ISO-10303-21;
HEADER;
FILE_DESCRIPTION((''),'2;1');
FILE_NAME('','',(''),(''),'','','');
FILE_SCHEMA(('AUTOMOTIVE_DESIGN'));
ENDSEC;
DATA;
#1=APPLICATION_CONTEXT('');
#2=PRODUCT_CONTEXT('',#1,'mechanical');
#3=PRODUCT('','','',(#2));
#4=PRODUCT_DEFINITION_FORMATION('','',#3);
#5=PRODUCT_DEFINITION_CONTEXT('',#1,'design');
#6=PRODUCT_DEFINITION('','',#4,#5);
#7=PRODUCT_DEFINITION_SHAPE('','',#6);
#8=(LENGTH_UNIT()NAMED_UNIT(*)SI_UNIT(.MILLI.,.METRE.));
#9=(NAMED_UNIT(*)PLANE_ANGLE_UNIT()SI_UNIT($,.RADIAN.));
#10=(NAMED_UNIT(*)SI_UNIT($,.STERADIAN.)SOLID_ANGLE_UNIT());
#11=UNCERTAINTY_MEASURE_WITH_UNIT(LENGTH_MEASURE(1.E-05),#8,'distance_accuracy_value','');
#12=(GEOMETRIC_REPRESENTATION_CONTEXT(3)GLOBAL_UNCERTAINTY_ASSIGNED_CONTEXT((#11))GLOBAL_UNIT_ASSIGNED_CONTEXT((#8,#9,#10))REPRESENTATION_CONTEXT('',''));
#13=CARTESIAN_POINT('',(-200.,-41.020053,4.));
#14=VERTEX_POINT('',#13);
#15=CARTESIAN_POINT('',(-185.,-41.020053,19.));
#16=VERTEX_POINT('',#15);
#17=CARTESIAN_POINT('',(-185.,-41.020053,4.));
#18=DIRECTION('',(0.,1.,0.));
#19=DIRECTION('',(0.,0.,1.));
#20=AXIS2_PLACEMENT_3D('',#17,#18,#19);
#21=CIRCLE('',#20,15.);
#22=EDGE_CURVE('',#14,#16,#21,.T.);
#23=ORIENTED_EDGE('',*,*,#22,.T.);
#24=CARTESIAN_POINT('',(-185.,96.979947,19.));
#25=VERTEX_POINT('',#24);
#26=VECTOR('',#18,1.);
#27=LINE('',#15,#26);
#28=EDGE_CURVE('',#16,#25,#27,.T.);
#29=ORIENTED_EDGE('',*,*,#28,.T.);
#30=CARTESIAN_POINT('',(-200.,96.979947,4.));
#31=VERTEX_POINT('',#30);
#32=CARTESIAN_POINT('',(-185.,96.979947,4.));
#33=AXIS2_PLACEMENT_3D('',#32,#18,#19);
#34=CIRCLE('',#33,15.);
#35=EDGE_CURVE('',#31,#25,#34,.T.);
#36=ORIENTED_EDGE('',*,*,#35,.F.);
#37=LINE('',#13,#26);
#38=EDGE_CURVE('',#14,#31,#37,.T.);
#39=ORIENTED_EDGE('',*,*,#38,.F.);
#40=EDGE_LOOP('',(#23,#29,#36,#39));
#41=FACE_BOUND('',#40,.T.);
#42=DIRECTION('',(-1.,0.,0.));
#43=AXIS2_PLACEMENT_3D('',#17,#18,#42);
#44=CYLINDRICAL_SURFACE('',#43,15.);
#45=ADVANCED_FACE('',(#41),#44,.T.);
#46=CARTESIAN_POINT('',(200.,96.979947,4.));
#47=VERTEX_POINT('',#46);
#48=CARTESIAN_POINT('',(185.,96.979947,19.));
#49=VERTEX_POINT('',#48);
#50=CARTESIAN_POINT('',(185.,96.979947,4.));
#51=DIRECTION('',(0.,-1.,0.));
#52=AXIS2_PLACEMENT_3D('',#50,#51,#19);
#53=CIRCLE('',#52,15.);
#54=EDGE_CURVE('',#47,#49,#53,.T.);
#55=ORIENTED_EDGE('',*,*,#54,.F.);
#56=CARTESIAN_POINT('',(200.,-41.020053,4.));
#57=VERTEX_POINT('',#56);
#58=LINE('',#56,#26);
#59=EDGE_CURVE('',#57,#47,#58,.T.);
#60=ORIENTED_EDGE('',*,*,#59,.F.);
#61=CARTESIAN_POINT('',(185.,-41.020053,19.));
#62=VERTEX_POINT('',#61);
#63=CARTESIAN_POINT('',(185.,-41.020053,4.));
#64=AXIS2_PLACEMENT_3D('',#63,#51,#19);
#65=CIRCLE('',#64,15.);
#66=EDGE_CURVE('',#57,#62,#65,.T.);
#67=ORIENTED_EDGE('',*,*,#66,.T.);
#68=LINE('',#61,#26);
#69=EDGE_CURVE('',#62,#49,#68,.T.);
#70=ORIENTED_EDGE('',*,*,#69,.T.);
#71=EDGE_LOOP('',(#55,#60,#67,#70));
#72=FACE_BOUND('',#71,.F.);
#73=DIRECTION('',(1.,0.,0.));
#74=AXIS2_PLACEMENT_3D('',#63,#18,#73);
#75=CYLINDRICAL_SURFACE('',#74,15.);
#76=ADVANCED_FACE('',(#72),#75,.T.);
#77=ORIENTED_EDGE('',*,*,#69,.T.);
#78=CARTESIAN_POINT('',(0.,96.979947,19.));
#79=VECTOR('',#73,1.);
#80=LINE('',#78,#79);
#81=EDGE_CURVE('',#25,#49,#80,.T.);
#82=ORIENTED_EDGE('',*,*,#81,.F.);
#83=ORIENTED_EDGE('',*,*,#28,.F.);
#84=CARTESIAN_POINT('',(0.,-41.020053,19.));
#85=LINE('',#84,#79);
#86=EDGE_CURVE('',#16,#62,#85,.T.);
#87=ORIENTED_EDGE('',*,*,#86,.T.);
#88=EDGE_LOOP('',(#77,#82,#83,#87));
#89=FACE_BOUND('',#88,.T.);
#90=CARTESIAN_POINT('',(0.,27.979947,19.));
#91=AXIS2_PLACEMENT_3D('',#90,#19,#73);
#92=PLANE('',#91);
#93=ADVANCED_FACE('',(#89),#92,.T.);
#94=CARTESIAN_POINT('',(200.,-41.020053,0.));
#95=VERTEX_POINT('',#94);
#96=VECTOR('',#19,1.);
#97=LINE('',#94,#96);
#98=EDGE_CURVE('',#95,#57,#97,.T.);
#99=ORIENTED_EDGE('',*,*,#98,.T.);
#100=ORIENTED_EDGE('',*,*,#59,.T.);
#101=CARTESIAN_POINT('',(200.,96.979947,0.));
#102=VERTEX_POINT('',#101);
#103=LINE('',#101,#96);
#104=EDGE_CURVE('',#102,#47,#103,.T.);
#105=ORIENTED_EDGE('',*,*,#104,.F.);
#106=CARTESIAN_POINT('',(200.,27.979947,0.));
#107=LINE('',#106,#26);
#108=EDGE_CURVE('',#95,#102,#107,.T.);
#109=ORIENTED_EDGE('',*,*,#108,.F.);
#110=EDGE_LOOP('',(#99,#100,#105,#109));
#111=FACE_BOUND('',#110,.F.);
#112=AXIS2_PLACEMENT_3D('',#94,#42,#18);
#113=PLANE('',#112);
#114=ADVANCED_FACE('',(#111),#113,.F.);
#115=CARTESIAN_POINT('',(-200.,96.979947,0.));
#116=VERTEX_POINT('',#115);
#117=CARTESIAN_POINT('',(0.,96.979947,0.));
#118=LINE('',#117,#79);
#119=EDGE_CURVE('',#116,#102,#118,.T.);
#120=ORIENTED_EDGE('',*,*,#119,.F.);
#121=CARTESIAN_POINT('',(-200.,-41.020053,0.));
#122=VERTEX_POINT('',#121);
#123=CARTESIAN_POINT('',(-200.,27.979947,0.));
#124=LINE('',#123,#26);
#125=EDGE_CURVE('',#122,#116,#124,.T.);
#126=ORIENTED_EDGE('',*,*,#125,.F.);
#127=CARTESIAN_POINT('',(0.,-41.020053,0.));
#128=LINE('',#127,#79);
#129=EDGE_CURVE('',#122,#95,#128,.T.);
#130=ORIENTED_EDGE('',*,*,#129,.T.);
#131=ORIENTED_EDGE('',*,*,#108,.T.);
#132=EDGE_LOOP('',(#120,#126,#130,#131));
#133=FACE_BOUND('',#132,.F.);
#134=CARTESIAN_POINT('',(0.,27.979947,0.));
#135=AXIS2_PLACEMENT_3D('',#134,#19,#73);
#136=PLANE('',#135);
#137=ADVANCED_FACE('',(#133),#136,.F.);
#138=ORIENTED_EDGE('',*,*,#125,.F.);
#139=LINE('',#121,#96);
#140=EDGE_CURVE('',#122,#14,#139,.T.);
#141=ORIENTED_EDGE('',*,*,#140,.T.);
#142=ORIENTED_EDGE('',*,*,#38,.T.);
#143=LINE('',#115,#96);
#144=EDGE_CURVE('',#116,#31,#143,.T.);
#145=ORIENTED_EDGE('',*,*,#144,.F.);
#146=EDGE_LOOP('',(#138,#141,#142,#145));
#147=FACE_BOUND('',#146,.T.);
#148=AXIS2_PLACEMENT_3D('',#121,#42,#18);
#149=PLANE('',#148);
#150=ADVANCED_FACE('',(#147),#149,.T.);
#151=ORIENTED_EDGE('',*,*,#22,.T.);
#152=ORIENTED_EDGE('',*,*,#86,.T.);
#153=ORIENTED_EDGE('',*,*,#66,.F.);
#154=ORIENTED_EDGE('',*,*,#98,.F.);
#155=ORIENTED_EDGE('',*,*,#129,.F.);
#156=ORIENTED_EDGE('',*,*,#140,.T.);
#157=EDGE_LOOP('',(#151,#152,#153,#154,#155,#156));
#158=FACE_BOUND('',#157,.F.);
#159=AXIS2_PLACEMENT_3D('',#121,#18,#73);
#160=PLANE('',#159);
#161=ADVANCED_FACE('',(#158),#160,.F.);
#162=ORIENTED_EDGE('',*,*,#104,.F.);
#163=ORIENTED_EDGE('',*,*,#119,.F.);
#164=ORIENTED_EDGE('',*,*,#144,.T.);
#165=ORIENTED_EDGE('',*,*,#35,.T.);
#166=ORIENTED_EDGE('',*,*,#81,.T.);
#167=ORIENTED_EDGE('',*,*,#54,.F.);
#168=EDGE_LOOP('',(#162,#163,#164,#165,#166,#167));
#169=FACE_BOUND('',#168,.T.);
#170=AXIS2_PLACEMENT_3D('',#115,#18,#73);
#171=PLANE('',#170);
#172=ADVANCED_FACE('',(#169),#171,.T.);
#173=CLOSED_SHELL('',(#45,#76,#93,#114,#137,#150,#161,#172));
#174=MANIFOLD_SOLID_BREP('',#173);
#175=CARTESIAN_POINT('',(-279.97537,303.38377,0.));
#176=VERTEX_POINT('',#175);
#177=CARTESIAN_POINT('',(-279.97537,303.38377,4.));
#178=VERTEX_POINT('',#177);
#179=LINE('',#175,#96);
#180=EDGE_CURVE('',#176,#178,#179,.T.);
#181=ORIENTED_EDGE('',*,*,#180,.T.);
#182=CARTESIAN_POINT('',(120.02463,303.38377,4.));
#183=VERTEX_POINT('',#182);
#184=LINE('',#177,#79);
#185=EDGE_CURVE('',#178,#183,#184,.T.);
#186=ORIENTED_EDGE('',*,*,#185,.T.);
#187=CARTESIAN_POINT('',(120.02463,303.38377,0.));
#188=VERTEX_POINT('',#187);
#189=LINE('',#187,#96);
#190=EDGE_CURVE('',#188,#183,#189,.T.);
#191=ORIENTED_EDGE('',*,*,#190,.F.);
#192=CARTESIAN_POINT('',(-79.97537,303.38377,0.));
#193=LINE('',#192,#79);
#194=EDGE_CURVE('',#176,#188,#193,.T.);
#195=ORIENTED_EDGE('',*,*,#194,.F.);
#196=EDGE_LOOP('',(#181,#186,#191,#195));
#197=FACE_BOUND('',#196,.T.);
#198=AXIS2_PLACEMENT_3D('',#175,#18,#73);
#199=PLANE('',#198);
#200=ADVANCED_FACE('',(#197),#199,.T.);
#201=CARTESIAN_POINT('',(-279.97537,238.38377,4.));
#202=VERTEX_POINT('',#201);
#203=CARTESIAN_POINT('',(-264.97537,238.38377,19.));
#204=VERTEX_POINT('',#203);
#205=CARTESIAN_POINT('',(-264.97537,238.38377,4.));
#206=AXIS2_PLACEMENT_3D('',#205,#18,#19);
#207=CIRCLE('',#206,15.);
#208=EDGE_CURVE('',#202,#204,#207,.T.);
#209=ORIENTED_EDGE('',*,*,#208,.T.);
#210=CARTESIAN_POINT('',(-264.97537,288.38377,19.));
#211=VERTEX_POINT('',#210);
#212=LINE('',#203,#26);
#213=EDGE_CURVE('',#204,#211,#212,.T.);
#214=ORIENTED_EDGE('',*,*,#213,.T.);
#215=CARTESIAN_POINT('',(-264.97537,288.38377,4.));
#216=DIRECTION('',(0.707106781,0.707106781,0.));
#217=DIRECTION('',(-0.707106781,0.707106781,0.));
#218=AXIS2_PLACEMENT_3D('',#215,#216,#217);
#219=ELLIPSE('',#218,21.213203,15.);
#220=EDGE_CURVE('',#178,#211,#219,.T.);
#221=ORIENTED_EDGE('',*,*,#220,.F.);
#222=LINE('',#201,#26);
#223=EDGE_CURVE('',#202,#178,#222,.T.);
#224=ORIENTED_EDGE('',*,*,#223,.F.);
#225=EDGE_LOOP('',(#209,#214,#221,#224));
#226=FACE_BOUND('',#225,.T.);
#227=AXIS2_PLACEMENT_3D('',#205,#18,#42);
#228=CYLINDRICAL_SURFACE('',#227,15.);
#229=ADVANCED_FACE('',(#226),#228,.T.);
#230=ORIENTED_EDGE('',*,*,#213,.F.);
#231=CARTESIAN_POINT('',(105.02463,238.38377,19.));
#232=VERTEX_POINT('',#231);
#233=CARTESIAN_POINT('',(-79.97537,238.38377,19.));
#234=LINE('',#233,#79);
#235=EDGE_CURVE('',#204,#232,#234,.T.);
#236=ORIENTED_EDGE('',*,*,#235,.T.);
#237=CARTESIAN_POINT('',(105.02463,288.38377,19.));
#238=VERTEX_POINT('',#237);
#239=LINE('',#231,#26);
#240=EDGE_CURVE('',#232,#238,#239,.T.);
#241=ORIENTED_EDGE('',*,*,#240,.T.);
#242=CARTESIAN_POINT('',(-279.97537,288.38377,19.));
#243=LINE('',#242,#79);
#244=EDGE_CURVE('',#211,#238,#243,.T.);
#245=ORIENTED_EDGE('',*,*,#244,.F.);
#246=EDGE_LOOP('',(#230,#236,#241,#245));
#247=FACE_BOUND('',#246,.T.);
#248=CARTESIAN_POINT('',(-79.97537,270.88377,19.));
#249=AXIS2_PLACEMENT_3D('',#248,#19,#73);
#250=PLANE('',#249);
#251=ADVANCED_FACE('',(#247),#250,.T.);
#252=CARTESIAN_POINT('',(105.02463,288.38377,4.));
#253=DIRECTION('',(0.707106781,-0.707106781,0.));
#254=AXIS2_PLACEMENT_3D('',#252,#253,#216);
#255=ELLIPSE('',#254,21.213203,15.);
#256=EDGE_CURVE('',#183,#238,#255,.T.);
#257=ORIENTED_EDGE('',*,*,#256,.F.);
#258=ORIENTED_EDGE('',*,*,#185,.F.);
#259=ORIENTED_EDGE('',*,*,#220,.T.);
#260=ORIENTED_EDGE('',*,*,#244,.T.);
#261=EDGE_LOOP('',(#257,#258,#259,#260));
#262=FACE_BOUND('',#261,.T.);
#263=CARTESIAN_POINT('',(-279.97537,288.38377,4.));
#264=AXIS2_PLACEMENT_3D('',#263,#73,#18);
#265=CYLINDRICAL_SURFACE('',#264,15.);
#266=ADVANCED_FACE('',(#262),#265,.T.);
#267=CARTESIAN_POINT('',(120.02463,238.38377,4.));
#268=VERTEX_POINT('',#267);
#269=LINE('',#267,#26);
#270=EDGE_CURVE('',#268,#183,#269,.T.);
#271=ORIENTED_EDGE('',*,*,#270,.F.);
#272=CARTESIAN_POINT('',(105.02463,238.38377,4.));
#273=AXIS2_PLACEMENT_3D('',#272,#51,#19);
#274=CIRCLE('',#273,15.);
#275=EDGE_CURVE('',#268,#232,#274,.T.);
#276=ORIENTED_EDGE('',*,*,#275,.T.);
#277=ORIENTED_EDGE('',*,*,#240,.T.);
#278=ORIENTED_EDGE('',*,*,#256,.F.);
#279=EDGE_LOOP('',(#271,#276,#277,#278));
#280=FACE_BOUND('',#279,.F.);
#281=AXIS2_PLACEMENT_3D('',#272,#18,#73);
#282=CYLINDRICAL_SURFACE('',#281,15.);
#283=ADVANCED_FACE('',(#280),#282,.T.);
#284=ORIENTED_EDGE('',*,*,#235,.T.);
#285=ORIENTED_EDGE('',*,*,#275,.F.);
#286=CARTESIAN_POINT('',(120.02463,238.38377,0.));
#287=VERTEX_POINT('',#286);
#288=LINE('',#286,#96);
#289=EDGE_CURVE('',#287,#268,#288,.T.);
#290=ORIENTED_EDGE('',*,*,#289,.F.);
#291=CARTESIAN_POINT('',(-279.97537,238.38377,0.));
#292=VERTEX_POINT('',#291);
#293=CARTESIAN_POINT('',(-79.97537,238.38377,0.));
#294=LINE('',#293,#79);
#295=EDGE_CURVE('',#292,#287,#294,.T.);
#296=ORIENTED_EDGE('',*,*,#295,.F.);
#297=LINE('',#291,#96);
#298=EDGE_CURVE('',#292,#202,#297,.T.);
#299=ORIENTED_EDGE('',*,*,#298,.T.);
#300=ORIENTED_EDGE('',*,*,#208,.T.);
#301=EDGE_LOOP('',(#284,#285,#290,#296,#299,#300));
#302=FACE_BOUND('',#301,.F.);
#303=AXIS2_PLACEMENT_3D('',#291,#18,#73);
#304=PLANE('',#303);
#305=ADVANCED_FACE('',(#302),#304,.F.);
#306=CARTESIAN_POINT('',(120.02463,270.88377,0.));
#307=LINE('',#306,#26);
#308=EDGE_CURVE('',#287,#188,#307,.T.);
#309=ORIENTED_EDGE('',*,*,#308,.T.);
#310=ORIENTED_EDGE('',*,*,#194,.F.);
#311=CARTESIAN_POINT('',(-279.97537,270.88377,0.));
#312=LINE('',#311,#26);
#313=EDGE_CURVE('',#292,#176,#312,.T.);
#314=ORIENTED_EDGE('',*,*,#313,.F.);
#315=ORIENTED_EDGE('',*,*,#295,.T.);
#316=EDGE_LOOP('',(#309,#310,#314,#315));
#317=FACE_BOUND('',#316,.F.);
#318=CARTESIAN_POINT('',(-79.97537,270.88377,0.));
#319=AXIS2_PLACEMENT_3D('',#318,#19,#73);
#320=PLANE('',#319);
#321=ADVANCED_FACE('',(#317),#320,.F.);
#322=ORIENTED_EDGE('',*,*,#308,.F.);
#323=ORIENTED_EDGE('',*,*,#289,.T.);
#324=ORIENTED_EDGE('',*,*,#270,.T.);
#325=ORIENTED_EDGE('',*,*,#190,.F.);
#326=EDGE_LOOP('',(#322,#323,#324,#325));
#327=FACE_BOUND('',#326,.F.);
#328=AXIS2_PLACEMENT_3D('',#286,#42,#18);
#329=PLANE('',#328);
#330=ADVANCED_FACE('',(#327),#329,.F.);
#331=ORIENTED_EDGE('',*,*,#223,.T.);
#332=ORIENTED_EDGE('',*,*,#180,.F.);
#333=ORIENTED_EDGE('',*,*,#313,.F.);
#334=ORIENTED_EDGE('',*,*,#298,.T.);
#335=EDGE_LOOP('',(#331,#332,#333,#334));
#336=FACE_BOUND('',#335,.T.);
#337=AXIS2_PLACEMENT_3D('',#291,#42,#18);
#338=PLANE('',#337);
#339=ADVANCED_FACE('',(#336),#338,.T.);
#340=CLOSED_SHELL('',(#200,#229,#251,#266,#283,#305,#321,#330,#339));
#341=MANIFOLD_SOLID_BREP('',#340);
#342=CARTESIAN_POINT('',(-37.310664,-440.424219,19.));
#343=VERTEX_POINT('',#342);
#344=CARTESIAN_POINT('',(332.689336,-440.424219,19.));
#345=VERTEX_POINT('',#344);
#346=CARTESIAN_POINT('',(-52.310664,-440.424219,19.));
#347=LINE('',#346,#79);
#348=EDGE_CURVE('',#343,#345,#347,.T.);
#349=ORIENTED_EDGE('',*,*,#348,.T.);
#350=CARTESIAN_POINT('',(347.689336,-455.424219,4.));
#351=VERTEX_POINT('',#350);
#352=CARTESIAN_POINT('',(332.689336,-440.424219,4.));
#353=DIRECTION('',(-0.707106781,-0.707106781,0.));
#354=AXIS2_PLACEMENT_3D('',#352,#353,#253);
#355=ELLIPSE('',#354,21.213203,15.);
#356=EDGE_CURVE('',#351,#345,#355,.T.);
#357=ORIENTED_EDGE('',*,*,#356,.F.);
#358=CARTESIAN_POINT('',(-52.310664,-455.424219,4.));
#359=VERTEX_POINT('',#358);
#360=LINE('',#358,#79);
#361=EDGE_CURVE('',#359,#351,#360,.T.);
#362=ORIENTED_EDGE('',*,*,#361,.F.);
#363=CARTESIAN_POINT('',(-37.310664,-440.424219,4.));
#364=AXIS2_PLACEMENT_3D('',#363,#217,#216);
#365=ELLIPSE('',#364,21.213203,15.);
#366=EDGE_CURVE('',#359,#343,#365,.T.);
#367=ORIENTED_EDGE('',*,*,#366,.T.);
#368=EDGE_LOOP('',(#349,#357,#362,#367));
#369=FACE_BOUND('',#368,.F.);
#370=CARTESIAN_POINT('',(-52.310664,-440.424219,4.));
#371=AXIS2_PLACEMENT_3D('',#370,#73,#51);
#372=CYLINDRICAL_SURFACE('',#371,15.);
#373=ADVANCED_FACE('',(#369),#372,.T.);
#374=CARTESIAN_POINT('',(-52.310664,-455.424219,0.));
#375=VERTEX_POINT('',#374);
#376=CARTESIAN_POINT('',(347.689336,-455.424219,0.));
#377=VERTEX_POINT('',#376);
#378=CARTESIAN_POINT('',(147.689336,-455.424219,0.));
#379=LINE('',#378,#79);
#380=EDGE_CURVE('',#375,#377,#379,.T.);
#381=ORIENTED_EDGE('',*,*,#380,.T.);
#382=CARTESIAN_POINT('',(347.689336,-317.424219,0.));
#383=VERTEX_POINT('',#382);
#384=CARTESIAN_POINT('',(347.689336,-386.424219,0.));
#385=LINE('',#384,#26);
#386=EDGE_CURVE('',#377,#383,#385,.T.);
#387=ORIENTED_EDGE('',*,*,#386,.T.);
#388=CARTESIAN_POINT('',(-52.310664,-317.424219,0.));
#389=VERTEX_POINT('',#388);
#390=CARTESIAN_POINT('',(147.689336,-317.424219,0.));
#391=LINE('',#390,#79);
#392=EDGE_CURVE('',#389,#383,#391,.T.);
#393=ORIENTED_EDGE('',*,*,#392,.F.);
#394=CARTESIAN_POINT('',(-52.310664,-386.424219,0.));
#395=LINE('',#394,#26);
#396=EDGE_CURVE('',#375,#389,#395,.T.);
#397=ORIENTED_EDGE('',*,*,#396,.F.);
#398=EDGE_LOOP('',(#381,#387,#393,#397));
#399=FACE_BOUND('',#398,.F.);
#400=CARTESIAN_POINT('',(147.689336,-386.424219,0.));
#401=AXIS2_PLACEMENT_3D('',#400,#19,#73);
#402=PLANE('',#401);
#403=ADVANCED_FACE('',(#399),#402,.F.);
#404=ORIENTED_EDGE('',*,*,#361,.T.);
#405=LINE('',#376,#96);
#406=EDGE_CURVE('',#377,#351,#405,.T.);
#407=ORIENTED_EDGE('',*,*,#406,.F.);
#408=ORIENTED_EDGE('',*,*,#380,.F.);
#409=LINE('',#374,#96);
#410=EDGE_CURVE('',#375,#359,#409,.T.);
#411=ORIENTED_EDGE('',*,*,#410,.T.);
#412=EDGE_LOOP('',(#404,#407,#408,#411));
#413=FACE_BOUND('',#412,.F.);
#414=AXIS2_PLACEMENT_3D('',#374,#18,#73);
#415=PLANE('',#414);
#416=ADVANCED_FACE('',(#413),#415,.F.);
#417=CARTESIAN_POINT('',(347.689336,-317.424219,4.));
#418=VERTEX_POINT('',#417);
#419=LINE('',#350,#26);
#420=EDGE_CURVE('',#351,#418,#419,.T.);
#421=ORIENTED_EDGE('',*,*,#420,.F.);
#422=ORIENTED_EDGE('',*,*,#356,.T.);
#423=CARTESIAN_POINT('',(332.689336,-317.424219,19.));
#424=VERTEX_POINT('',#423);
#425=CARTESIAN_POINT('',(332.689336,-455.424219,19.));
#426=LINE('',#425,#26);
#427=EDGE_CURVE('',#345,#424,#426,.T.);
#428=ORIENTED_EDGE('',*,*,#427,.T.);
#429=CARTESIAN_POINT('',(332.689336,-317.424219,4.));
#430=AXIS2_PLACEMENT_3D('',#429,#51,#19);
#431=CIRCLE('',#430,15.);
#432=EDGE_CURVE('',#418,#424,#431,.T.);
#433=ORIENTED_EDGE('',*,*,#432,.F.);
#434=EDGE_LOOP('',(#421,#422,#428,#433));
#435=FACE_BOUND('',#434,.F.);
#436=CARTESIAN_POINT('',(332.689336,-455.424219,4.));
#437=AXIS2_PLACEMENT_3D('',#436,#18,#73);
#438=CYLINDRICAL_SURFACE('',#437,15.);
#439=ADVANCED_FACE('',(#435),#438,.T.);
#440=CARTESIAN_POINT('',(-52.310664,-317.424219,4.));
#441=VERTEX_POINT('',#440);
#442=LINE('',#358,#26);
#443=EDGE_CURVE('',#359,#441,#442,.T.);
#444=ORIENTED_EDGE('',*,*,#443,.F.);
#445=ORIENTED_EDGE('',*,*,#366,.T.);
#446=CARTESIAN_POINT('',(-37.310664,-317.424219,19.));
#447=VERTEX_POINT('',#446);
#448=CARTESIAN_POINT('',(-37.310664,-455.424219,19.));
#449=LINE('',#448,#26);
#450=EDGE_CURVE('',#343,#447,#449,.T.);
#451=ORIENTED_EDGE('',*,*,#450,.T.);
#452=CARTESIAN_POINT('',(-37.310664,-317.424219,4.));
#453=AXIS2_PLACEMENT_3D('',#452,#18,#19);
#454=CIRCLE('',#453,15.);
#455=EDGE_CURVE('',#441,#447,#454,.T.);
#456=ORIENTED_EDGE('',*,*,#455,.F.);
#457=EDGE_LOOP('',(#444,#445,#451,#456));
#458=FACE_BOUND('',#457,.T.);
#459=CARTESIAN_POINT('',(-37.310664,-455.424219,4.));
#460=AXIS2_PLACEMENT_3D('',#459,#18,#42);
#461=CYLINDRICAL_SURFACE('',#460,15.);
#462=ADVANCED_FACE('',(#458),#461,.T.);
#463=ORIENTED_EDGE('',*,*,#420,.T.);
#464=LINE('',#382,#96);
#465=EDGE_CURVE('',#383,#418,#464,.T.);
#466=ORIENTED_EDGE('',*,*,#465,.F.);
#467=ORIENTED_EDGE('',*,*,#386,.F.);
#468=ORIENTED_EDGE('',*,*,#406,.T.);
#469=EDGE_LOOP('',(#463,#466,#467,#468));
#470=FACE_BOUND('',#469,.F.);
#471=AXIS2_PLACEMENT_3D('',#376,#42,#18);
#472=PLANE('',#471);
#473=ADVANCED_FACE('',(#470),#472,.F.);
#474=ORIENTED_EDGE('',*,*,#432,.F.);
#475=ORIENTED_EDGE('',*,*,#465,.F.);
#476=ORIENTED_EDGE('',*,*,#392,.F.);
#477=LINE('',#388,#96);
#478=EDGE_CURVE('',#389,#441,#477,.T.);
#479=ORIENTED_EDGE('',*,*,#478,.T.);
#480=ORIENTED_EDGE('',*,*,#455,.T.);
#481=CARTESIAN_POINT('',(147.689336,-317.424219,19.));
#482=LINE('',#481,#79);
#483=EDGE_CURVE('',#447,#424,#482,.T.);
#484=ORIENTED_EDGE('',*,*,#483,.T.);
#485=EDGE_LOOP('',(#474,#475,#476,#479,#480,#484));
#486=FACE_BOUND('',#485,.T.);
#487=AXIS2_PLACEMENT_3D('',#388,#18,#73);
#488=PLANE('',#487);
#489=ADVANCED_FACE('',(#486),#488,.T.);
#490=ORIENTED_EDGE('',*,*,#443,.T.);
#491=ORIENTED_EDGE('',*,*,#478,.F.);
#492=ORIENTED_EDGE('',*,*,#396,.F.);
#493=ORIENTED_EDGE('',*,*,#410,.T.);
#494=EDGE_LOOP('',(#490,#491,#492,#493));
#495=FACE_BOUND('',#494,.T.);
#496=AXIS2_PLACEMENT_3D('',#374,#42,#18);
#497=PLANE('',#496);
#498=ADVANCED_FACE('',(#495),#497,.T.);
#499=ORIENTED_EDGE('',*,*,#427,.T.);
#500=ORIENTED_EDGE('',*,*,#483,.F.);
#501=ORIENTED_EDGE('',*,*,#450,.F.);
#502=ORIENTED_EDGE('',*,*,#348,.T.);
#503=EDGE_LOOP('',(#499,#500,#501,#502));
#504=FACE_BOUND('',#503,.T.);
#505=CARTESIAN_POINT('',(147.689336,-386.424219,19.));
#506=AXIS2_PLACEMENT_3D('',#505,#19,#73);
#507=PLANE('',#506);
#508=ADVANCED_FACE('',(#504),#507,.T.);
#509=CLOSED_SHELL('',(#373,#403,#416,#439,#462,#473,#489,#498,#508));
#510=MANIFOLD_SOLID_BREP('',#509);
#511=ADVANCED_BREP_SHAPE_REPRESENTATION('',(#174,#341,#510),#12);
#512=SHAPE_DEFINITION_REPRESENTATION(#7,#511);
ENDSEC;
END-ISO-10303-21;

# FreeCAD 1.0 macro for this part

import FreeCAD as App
import Part
import Sketcher

V = App.Vector
Q = App.Units.Quantity


def edges_at(feature, points):
    """Names of the edges that pass closest to the given points."""
    edges = feature.Shape.Edges
    near = lambda p: min(range(len(edges)), key=lambda i: edges[i].distToShape(Part.Vertex(*p))[0])
    return sorted({f"Edge{near(p) + 1}" for p in points})


def add_polygon(sketch, points):
    """Adds a closed chain of lines whose ends are joined by coincident constraints."""
    first, n = sketch.GeometryCount, len(points)
    for a, b in zip(points, points[1:] + points[:1]):
        sketch.addGeometry(Part.LineSegment(App.Vector(*a, 0), App.Vector(*b, 0)), False)
    for i in range(n):
        sketch.addConstraint(Sketcher.Constraint("Coincident", first + i, 2, first + (i + 1) % n, 1))

doc = App.newDocument("Part")
body = doc.addObject("PartDesign::Body", "Body")
body.AllowCompound = True

sketch1 = body.newObject("Sketcher::SketchObject", "Sketch")
sketch1.AttachmentSupport = (doc.getObject("XY_Plane"), [""])
sketch1.MapMode = "FlatFace"
add_polygon(sketch1, [(-200, 97), (-200, -41), (200, -41), (200, 97)])
add_polygon(sketch1, [(-52, -317), (-52, -455), (348, -455), (348, -317)])
add_polygon(sketch1, [(-280, 303), (-280, 238), (120, 238), (120, 303)])
sketch1.addConstraint([
    Sketcher.Constraint("Vertical", 0),
    Sketcher.Constraint("Horizontal", 1),
    Sketcher.Constraint("Vertical", 2),
    Sketcher.Constraint("Horizontal", 3),
    Sketcher.Constraint("Vertical", 4),
    Sketcher.Constraint("Horizontal", 5),
    Sketcher.Constraint("Vertical", 6),
    Sketcher.Constraint("Horizontal", 7),
    Sketcher.Constraint("Vertical", 8),
    Sketcher.Constraint("Horizontal", 9),
    Sketcher.Constraint("Vertical", 10),
    Sketcher.Constraint("Horizontal", 11),
    Sketcher.Constraint("Equal", 3, 5),
    Sketcher.Constraint("Equal", 7, 9),
    Sketcher.Constraint("Equal", 2, 4),
    Sketcher.Constraint("DistanceX", 1, 1, 1, 2, Q("400 mm")),
    Sketcher.Constraint("DistanceY", 0, 2, 0, 1, Q("138 mm")),
    Sketcher.Constraint("DistanceY", 8, 2, 8, 1, Q("65 mm")),
    Sketcher.Constraint("DistanceX", 0, 2, -1, 1, Q("200 mm")),
    Sketcher.Constraint("DistanceY", 4, 2, -1, 1, Q("455.424219 mm")),
    Sketcher.Constraint("DistanceX", 8, 2, -1, 1, Q("279.97537 mm")),
    Sketcher.Constraint("DistanceY", -1, 1, 8, 2, Q("238.38377 mm")),
    Sketcher.Constraint("DistanceY", 0, 2, -1, 1, Q("41.020053 mm")),
    Sketcher.Constraint("DistanceX", 4, 2, -1, 1, Q("52.310664 mm")),
])
pad1 = body.newObject("PartDesign::Pad", "Pad")
pad1.Profile = sketch1
pad1.Length = 19
doc.recompute()

fillet = body.newObject("PartDesign::Fillet", "Fillet")
fillet.Base = (pad1, edges_at(pad1, [
    (147.689, -455.424, 19),
    (-52.311, -386.424, 19),
    (347.689, -386.424, 19),
    (200, 27.98, 19),
    (-200, 27.98, 19),
    (-279.975, 270.884, 19),
    (-79.975, 303.384, 19),
    (120.025, 270.884, 19),
]))
fillet.Radius = 15

doc.recompute()
